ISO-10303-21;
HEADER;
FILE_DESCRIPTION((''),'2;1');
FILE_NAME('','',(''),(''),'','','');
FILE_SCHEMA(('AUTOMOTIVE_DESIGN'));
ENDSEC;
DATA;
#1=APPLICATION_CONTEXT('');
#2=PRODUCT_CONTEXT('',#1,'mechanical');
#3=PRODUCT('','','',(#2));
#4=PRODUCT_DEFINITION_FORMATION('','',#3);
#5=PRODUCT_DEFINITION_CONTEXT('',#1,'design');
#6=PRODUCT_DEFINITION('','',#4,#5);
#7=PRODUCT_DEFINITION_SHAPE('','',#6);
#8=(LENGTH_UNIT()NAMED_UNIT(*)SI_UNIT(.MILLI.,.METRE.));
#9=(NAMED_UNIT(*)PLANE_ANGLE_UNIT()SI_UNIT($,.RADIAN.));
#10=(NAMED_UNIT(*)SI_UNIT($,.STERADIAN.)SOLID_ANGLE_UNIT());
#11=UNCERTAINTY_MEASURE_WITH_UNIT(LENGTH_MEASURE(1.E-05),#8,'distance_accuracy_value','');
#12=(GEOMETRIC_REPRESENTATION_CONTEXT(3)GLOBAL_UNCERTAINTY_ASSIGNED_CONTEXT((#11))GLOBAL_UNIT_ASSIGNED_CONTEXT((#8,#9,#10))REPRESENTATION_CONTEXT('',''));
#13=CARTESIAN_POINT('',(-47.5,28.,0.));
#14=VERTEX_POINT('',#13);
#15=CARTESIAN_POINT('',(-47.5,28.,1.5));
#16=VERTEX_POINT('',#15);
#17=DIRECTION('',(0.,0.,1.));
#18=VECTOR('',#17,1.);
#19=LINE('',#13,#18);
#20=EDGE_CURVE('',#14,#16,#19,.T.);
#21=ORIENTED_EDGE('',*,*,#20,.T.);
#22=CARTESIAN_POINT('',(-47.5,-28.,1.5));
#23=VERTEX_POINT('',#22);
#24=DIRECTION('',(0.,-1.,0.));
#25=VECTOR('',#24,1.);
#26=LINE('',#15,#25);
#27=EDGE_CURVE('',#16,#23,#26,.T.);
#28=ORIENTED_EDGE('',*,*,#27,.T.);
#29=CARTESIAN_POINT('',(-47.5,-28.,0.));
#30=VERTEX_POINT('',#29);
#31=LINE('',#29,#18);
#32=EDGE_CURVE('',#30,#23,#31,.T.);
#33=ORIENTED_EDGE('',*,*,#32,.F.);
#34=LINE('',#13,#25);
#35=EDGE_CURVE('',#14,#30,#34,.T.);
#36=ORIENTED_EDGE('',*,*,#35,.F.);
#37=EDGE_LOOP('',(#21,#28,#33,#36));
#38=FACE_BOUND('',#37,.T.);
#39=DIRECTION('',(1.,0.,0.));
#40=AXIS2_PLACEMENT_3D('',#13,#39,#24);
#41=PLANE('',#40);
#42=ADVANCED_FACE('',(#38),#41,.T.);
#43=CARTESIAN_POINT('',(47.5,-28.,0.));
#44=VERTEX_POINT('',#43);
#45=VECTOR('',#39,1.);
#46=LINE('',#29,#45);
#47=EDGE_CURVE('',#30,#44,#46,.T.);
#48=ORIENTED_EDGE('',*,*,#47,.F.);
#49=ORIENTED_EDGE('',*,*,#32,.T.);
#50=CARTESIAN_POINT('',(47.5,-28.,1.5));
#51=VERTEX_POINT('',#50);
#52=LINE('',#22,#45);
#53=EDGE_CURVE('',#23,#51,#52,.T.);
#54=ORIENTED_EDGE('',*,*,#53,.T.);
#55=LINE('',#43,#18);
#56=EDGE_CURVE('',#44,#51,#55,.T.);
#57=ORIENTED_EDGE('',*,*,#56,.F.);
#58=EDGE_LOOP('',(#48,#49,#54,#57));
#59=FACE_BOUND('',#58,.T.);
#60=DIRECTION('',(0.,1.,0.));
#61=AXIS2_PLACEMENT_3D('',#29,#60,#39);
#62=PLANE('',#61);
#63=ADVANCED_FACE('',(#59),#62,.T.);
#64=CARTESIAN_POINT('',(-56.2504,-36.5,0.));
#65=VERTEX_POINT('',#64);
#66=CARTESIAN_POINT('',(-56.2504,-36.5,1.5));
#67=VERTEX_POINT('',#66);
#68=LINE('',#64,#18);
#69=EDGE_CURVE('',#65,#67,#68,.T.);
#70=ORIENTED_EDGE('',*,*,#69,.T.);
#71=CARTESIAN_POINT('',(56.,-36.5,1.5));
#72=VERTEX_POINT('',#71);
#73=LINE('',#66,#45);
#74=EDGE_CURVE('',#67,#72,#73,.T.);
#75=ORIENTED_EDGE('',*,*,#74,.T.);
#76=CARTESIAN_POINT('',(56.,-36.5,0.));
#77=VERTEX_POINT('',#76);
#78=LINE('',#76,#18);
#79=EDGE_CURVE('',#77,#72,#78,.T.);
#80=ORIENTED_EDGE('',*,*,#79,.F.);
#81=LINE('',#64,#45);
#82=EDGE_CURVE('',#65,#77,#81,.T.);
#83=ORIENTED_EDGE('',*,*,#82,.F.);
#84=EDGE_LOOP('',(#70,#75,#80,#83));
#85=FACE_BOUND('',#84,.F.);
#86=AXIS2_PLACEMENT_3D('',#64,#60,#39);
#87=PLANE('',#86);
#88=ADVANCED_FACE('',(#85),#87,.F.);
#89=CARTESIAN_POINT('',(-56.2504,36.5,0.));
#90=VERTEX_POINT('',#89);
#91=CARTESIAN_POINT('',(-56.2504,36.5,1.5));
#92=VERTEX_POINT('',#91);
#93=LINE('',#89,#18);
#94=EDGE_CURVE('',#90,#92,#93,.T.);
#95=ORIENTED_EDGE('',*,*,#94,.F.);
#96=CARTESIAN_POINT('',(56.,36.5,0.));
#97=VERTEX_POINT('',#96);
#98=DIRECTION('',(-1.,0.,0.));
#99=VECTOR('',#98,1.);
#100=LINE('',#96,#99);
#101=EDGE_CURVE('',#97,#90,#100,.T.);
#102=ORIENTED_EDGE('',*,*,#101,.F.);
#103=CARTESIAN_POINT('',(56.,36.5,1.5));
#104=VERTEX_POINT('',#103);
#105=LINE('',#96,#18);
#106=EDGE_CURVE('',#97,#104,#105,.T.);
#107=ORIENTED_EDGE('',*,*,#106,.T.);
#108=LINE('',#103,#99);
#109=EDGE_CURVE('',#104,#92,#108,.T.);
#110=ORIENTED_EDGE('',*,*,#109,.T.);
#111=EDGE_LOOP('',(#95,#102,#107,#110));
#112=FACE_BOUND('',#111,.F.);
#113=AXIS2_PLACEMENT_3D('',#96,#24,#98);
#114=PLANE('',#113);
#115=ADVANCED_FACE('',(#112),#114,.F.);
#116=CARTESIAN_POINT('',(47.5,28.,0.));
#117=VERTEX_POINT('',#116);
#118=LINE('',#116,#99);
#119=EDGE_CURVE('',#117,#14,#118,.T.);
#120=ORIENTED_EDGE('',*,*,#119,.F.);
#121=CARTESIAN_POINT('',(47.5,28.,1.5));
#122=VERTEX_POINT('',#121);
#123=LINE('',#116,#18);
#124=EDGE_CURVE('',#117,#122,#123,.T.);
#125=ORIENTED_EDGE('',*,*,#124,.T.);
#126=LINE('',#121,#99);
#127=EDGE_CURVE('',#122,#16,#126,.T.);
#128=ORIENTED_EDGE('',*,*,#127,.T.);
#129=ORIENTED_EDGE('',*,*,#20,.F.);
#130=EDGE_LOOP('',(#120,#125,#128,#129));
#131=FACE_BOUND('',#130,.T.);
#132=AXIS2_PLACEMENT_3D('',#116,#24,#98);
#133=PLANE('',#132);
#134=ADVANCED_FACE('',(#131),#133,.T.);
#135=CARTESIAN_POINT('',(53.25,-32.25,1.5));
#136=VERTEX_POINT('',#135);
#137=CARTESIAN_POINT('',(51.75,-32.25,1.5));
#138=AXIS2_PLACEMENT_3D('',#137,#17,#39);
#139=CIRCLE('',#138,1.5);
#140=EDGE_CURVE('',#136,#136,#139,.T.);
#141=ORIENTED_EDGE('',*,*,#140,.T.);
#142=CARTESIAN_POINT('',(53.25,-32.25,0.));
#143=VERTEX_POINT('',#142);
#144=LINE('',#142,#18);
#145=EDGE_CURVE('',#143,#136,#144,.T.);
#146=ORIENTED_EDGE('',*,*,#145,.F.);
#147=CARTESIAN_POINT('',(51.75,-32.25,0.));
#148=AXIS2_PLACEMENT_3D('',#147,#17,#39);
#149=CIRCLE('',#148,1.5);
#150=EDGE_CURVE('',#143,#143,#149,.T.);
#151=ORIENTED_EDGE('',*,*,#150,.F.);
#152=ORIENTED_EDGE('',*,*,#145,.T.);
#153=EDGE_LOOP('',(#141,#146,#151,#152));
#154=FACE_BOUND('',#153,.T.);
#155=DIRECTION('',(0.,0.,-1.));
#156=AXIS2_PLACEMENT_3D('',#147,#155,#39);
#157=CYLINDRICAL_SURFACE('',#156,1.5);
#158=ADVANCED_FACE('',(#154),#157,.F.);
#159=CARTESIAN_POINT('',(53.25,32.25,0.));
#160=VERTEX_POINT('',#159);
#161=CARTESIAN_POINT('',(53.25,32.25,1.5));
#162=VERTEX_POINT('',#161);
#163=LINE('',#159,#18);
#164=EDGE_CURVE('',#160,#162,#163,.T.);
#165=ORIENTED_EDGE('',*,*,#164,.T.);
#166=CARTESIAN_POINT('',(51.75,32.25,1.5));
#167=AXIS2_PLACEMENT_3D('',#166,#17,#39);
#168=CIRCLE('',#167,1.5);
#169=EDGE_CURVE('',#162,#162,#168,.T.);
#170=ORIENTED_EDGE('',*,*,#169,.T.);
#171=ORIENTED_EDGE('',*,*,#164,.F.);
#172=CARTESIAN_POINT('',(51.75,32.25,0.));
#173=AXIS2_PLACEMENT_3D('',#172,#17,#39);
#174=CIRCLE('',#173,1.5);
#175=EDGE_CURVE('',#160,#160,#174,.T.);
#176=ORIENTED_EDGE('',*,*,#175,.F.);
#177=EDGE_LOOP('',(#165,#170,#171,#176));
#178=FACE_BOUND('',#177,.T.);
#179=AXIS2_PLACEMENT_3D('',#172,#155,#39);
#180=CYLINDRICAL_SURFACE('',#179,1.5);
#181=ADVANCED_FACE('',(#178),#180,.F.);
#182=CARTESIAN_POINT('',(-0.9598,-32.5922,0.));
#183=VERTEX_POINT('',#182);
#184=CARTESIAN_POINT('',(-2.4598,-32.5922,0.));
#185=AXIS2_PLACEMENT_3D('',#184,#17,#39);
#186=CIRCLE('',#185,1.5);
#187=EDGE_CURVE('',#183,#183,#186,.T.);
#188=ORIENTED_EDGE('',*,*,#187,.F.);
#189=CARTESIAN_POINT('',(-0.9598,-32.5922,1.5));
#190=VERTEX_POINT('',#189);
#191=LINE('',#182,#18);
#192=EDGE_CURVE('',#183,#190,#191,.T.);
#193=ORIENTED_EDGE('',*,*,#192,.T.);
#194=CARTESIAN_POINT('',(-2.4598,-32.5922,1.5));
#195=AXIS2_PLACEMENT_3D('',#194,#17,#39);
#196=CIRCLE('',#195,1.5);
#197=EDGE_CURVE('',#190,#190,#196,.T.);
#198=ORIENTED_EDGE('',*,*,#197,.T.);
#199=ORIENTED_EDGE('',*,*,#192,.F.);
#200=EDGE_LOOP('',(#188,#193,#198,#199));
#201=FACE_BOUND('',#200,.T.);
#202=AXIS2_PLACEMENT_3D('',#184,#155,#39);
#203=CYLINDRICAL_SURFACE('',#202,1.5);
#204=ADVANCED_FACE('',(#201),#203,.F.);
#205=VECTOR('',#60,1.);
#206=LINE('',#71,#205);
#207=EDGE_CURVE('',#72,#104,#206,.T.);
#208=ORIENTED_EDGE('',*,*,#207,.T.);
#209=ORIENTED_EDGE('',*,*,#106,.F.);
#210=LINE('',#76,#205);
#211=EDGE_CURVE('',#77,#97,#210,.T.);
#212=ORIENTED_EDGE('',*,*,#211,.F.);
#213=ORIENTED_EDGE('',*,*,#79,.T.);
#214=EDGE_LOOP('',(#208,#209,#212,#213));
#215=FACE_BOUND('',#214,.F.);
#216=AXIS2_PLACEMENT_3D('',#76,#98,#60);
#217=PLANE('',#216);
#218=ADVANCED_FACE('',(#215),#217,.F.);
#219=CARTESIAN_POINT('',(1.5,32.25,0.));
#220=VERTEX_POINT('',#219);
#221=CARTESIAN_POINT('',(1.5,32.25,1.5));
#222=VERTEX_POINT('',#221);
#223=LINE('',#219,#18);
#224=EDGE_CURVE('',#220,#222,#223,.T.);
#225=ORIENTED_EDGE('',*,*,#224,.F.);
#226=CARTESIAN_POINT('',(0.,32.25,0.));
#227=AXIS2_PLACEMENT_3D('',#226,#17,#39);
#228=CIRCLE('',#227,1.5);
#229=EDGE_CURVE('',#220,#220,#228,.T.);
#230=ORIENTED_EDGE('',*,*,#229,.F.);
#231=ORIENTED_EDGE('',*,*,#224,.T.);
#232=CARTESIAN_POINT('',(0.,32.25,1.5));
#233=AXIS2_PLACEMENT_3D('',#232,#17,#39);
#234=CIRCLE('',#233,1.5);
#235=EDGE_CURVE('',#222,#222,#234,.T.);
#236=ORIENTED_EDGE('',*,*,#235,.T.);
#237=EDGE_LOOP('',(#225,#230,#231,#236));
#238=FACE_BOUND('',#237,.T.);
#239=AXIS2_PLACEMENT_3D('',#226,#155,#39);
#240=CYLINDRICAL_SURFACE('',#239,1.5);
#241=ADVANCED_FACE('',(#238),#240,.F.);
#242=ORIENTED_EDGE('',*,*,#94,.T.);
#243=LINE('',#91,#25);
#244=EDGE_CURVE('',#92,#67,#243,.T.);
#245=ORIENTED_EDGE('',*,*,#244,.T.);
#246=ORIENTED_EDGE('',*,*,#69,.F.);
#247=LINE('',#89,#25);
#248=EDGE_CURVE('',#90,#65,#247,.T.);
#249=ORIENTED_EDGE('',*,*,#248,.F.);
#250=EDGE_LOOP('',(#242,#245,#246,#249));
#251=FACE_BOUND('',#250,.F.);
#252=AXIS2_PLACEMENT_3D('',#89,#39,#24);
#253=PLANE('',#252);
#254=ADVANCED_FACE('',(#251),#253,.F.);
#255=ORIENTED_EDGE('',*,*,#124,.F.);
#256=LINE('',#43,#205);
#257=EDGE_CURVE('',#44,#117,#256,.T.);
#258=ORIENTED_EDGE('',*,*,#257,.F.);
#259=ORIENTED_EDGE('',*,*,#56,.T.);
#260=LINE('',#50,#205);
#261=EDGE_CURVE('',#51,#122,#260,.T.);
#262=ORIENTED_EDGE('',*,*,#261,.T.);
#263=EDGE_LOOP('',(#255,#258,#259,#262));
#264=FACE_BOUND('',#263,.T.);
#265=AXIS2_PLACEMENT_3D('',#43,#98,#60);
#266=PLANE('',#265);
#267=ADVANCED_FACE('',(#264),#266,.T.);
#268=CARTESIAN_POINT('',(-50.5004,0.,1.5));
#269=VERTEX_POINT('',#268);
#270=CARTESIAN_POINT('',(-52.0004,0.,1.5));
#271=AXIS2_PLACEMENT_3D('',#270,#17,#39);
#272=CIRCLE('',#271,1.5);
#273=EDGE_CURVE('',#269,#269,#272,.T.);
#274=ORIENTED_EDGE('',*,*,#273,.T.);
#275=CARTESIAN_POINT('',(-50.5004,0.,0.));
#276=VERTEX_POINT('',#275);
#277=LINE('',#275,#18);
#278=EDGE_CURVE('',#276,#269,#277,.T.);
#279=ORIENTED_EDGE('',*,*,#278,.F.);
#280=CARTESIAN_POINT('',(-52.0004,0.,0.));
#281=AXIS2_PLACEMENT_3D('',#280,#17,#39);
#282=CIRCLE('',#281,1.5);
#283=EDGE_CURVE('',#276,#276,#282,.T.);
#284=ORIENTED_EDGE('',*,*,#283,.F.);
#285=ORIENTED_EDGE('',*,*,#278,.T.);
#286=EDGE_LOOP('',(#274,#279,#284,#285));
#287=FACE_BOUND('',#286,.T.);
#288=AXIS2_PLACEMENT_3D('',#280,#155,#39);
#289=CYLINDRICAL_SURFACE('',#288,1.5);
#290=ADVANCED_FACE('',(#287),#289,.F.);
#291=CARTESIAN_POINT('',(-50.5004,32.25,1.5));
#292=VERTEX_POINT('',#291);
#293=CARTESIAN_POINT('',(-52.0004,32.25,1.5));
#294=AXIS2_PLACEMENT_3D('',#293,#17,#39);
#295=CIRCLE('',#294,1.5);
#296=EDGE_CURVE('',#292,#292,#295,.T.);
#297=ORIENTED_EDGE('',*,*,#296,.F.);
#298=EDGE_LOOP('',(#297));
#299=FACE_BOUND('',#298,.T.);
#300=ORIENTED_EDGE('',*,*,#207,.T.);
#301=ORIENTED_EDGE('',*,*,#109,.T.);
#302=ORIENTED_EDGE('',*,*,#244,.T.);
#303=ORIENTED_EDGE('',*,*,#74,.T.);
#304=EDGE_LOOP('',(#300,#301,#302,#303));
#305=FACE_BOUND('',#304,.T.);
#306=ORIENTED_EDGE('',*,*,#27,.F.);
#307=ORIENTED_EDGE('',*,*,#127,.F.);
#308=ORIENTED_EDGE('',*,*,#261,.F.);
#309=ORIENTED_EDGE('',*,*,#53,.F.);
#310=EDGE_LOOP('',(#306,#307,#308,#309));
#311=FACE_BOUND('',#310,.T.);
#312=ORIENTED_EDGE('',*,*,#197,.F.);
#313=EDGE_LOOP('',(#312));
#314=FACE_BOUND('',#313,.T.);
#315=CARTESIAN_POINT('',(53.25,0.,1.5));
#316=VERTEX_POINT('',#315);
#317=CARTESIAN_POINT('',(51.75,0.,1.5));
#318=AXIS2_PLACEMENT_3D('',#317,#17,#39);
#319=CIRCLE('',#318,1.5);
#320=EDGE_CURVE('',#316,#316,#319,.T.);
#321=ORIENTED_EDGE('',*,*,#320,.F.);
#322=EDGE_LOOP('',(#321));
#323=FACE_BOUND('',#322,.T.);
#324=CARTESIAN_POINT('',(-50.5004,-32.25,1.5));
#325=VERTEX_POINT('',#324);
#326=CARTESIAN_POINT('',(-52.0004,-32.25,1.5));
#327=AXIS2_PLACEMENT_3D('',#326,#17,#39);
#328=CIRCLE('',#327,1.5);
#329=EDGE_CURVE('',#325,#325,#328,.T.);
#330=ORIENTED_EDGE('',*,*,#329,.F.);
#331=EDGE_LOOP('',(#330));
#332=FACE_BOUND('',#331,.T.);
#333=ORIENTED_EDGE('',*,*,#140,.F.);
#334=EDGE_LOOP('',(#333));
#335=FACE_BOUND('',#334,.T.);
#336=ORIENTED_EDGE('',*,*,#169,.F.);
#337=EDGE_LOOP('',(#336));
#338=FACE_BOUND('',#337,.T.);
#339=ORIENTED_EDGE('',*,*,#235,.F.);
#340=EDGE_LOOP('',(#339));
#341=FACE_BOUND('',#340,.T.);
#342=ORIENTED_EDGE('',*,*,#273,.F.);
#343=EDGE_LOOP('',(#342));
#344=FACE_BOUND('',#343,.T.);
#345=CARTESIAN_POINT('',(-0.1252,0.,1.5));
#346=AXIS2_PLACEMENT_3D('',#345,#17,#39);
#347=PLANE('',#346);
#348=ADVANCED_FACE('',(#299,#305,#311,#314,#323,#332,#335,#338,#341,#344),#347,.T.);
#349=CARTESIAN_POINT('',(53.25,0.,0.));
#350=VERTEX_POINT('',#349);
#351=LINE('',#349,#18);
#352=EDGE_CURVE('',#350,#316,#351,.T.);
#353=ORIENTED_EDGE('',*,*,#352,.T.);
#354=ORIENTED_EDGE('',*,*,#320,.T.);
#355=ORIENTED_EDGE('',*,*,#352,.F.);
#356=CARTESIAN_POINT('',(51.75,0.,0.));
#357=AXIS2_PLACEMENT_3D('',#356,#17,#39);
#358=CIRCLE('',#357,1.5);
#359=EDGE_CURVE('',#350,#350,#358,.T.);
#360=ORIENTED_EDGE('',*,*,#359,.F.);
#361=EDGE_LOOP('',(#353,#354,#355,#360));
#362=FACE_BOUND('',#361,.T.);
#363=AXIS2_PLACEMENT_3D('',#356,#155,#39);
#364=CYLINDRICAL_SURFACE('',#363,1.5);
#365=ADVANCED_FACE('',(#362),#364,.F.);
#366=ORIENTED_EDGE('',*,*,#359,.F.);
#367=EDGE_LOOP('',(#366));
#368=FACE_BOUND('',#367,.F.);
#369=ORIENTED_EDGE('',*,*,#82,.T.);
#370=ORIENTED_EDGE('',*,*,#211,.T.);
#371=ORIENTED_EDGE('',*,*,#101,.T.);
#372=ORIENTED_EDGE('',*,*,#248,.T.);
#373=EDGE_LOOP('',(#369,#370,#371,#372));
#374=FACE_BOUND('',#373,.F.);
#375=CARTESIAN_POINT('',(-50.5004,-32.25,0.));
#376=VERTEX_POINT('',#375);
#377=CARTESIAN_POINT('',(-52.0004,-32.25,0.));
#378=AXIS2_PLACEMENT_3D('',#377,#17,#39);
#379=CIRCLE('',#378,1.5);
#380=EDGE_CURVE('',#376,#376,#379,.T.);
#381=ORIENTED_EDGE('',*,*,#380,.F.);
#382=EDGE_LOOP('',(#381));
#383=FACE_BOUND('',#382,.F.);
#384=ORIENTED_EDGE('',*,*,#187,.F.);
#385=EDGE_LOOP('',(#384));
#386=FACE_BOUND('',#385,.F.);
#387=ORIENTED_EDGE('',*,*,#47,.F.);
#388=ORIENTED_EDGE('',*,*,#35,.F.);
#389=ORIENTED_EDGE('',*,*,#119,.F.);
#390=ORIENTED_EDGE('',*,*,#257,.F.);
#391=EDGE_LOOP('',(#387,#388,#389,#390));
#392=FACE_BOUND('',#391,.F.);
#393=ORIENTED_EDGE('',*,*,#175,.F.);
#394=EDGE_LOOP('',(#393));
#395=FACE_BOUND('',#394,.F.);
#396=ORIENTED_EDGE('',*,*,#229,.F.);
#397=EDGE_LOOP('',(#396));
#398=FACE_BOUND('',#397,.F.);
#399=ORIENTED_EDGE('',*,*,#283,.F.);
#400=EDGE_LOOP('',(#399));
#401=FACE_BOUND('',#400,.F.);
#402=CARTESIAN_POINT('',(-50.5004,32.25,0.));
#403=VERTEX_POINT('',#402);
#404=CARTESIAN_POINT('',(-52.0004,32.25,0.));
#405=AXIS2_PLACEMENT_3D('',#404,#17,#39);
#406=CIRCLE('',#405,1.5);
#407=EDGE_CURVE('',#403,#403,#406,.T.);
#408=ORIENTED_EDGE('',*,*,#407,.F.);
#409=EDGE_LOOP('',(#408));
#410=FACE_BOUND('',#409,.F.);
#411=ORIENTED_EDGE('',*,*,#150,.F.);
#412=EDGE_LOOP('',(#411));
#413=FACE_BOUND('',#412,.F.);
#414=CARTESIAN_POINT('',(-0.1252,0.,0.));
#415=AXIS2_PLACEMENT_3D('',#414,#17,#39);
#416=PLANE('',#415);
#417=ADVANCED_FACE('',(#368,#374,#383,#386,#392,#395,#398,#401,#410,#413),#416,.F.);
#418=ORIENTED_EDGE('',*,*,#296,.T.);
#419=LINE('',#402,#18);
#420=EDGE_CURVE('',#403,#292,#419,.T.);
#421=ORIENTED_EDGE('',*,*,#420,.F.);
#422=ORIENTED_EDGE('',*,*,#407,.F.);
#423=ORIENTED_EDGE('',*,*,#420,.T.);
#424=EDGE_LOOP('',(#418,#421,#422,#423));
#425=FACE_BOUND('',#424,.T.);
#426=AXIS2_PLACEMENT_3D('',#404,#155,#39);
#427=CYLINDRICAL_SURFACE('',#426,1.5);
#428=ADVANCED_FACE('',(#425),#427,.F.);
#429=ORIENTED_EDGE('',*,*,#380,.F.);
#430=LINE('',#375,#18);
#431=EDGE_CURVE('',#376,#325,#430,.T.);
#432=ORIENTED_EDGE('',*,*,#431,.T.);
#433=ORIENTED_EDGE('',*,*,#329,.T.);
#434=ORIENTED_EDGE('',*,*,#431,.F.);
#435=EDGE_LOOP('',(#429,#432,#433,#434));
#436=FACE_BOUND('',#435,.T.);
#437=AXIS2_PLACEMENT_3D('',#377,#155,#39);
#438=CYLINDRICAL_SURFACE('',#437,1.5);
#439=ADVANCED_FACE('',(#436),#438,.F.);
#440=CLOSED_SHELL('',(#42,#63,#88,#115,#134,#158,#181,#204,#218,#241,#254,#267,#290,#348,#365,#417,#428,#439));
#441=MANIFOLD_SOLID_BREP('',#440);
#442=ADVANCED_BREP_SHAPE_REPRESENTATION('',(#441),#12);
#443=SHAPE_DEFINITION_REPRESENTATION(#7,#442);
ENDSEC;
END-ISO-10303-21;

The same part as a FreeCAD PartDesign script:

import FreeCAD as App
import Part
import Sketcher
from FreeCAD import Vector


def add_polygon(sketch, points):
    """Adds a closed chain of lines whose ends are joined by coincident constraints."""
    first, n = sketch.GeometryCount, len(points)
    for a, b in zip(points, points[1:] + points[:1]):
        sketch.addGeometry(Part.LineSegment(App.Vector(*a, 0), App.Vector(*b, 0)), False)
    for i in range(n):
        sketch.addConstraint(Sketcher.Constraint("Coincident", first + i, 2, first + (i + 1) % n, 1))

doc = App.newDocument("Part")
params = doc.addObject("Spreadsheet::Sheet", "Params")
for row, (alias, value) in enumerate([
    ("sketch1_diameter", "3 mm"),
    ("sketch1_height", "73 mm"),
    ("sketch1_height2", "56 mm"),
    ("pad1_length", "1.5 mm"),
], start=1):
    params.set(f"A{row}", alias)
    params.set(f"B{row}", "=" + value)
    params.setAlias(f"B{row}", alias)

body = doc.addObject("PartDesign::Body", "Body")

# Sketch on XY plane
sketch1 = body.newObject("Sketcher::SketchObject", "Sketch")
sketch1.AttachmentSupport = (doc.getObject("XY_Plane"), [""])
sketch1.MapMode = "FlatFace"
add_polygon(sketch1, [(-56.3, 36.5), (-56.3, -36.5), (56, -36.5), (56, 36.5)])  # lines 0-3
sketch1.addGeometry(Part.Circle(Vector(-52, -32.2, 0), Vector(0, 0, 1), 1.5), False)  # 4
sketch1.addGeometry(Part.Circle(Vector(-2.5, -32.6, 0), Vector(0, 0, 1), 1.5), False)  # 5
sketch1.addGeometry(Part.Circle(Vector(51.8, -32.2, 0), Vector(0, 0, 1), 1.5), False)  # 6
sketch1.addGeometry(Part.Circle(Vector(-52, 0, 0), Vector(0, 0, 1), 1.5), False)  # 7
sketch1.addGeometry(Part.Circle(Vector(-52, 32.2, 0), Vector(0, 0, 1), 1.5), False)  # 8
add_polygon(sketch1, [(47.5, -28), (-47.5, -28), (-47.5, 28), (47.5, 28)])  # lines 9-12
sketch1.addGeometry(Part.Circle(Vector(51.8, 0, 0), Vector(0, 0, 1), 1.5), False)  # 13
sketch1.addGeometry(Part.Circle(Vector(0, 32.2, 0), Vector(0, 0, 1), 1.5), False)  # 14
sketch1.addGeometry(Part.Circle(Vector(51.8, 32.2, 0), Vector(0, 0, 1), 1.5), False)  # 15
sketch1.addConstraint(Sketcher.Constraint("Vertical", 0))
sketch1.addConstraint(Sketcher.Constraint("Horizontal", 1))
sketch1.addConstraint(Sketcher.Constraint("Vertical", 2))
sketch1.addConstraint(Sketcher.Constraint("Horizontal", 3))
sketch1.addConstraint(Sketcher.Constraint("Horizontal", 9))
sketch1.addConstraint(Sketcher.Constraint("Vertical", 10))
sketch1.addConstraint(Sketcher.Constraint("Horizontal", 11))
sketch1.addConstraint(Sketcher.Constraint("Vertical", 12))
sketch1.addConstraint(Sketcher.Constraint("Equal", 4, 5))
sketch1.addConstraint(Sketcher.Constraint("Equal", 5, 6))
sketch1.addConstraint(Sketcher.Constraint("Equal", 6, 7))
sketch1.addConstraint(Sketcher.Constraint("Equal", 7, 8))
sketch1.addConstraint(Sketcher.Constraint("Equal", 8, 13))
sketch1.addConstraint(Sketcher.Constraint("Equal", 13, 14))
sketch1.addConstraint(Sketcher.Constraint("Equal", 14, 15))
sketch1.addConstraint(Sketcher.Constraint("Symmetric", 9, 2, 11, 2, -1, 1))
sketch1.addConstraint(Sketcher.Constraint("Symmetric", 4, 3, 8, 3, -1))
sketch1.addConstraint(Sketcher.Constraint("Symmetric", 6, 3, 15, 3, -1))
sketch1.addConstraint(Sketcher.Constraint("PointOnObject", 7, 3, -1))
sketch1.addConstraint(Sketcher.Constraint("PointOnObject", 13, 3, -1))
sketch1.addConstraint(Sketcher.Constraint("PointOnObject", 14, 3, -2))
sketch1.addConstraint(Sketcher.Constraint("Horizontal", 4, 3, 6, 3))
sketch1.addConstraint(Sketcher.Constraint("Horizontal", 8, 3, 14, 3))
sketch1.addConstraint(Sketcher.Constraint("Vertical", 4, 3, 7, 3))
sketch1.addConstraint(Sketcher.Constraint("Vertical", 6, 3, 13, 3))
sketch1.addConstraint(Sketcher.Constraint("Diameter", 4, 3.0))
sketch1.addConstraint(Sketcher.Constraint("DistanceX", 9, 2, -1, 1, 47.5))
sketch1.addConstraint(Sketcher.Constraint("DistanceY", 0, 2, 0, 1, 73.0))
sketch1.addConstraint(Sketcher.Constraint("DistanceY", 10, 1, 10, 2, 56.0))
sketch1.addConstraint(Sketcher.Constraint("DistanceX", -1, 1, 1, 2, 56.0))
sketch1.addConstraint(Sketcher.Constraint("DistanceY", 0, 2, -1, 1, 36.5))
sketch1.addConstraint(Sketcher.Constraint("DistanceY", 4, 3, 8, 3, 64.5))
sketch1.addConstraint(Sketcher.Constraint("DistanceX", -1, 1, 6, 3, 51.75))
sketch1.addConstraint(Sketcher.Constraint("DistanceX", 0, 2, 4, 3, 4.25))
sketch1.addConstraint(Sketcher.Constraint("DistanceX", 1, 1, 1, 2, 112.2504))
sketch1.addConstraint(Sketcher.Constraint("DistanceX", 5, 3, -1, 1, 2.4598))
sketch1.addConstraint(Sketcher.Constraint("DistanceY", 5, 3, -1, 1, 32.5922))
sketch1.setExpression("Constraints[33]", "Params.sketch1_diameter")
sketch1.setExpression("Constraints[35]", "Params.sketch1_height")
sketch1.setExpression("Constraints[36]", "Params.sketch1_height2")
pad1 = body.newObject("PartDesign::Pad", "Pad")
pad1.Profile = sketch1
pad1.setExpression("Length", "Params.pad1_length")

doc.recompute()
